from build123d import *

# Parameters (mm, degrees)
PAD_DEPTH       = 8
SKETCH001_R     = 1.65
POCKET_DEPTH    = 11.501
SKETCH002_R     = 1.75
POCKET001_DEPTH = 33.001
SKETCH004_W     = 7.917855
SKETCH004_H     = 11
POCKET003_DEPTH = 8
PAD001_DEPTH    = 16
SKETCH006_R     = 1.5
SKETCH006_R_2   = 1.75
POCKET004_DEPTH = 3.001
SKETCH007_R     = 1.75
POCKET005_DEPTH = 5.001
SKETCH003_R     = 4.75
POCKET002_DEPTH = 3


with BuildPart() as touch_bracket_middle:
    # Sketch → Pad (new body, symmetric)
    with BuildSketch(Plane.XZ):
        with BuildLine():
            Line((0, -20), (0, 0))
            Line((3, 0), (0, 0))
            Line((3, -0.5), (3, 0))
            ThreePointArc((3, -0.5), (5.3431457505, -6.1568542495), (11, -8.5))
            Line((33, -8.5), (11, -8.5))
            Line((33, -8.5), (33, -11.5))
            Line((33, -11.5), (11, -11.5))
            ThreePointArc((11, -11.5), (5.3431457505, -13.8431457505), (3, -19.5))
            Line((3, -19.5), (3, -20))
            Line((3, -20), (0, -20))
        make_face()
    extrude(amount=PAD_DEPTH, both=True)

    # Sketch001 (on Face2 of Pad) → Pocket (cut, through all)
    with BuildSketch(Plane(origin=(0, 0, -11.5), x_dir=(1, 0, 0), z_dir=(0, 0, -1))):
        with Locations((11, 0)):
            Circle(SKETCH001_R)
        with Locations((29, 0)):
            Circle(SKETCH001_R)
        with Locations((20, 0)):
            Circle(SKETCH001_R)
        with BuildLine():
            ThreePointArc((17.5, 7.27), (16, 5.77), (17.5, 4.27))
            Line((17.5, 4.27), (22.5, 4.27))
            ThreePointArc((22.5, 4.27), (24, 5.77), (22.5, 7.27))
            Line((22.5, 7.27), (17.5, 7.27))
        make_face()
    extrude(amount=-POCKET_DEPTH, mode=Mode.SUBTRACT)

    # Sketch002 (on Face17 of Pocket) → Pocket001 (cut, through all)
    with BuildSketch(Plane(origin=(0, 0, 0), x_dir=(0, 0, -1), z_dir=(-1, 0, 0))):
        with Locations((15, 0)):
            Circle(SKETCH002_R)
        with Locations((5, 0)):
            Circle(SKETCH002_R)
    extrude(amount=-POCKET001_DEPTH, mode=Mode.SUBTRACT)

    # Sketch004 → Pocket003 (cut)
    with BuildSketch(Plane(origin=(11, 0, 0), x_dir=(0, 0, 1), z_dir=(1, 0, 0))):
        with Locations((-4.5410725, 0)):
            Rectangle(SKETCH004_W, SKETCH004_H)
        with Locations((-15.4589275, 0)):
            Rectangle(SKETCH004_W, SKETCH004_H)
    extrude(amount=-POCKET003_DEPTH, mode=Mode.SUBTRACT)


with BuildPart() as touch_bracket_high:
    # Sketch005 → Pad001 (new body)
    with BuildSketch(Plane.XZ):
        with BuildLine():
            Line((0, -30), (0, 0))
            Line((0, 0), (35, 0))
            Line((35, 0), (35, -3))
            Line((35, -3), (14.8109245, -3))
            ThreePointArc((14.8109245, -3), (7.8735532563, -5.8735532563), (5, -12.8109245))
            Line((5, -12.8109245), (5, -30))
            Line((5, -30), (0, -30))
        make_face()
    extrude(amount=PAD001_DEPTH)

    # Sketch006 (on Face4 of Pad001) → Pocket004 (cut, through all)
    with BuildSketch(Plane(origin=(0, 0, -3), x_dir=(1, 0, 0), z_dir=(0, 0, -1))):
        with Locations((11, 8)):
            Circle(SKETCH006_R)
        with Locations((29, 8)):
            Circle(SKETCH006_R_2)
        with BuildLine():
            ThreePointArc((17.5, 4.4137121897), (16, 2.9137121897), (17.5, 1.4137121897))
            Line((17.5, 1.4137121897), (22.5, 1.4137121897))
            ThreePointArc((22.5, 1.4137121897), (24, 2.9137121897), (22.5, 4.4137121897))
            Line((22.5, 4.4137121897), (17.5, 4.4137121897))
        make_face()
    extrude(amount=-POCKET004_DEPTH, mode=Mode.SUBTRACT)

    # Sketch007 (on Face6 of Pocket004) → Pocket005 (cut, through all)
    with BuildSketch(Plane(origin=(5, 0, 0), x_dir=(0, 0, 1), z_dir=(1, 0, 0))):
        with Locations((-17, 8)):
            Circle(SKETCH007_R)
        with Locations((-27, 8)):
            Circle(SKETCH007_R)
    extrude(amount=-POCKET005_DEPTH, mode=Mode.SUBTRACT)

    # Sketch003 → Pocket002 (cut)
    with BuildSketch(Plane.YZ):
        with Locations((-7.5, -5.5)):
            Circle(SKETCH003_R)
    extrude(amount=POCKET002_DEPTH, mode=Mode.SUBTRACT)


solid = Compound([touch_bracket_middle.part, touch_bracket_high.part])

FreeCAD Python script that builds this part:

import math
import FreeCAD as App
import Part
import Sketcher


def add_polygon(sketch, points):
    """Adds a closed chain of lines whose ends are joined by coincident constraints."""
    first, n = sketch.GeometryCount, len(points)
    for a, b in zip(points, points[1:] + points[:1]):
        sketch.addGeometry(Part.LineSegment(App.Vector(*a, 0), App.Vector(*b, 0)), False)
    for i in range(n):
        sketch.addConstraint(Sketcher.Constraint("Coincident", first + i, 2, first + (i + 1) % n, 1))

doc = App.newDocument("Part")
params = doc.addObject("Spreadsheet::Sheet", "Params")
for row, (alias, value) in enumerate([
    ("sketch1_radius", "8 mm"),
    ("sketch1_width", "3 mm"),
    ("sketch1_width2", "22 mm"),
    ("sketch1_height", "20 mm"),
    ("pad1_length", "16 mm"),
    ("sketch2_diameter", "3.3 mm"),
    ("sketch2_radius", "1.5 mm"),
    ("sketch2_width", "5 mm"),
    ("sketch3_diameter", "3.5 mm"),
    ("sketch4_width", "11 mm"),
    ("pocket3_length", "8 mm"),
    ("sketch5_width", "5 mm"),
    ("sketch5_width2", "35 mm"),
    ("sketch5_height", "30 mm"),
    ("sketch5_height2", "3 mm"),
    ("pad2_length", "16 mm"),
    ("sketch6_diameter", "3 mm"),
    ("sketch6_diameter2", "3.5 mm"),
    ("sketch6_width", "5 mm"),
    ("sketch7_diameter", "3.5 mm"),
    ("sketch8_diameter", "9.5 mm"),
    ("pocket6_length", "3 mm"),
], start=1):
    params.set(f"A{row}", alias)
    params.set(f"B{row}", "=" + value)
    params.setAlias(f"B{row}", alias)

body = doc.addObject("PartDesign::Body", "Body")

sketch1 = body.newObject("Sketcher::SketchObject", "Sketch")
sketch1.AttachmentSupport = (doc.getObject("XZ_Plane"), [""])
sketch1.MapMode = "FlatFace"
sketch1.addGeometry([
    Part.LineSegment(App.Vector(0, 0, 0), App.Vector(0, -20, 0)),
    Part.LineSegment(App.Vector(0, -20, 0), App.Vector(3, -20, 0)),
    Part.LineSegment(App.Vector(3, -20, 0), App.Vector(3, -19.5, 0)),
    Part.ArcOfCircle(Part.Circle(App.Vector(11, -19.5, 0), App.Vector(0, 0, 1), 8), math.radians(90), math.radians(180)),
    Part.LineSegment(App.Vector(11, -11.5, 0), App.Vector(33, -11.5, 0)),
    Part.LineSegment(App.Vector(33, -11.5, 0), App.Vector(33, -8.5, 0)),
    Part.LineSegment(App.Vector(33, -8.5, 0), App.Vector(11, -8.5, 0)),
    Part.ArcOfCircle(Part.Circle(App.Vector(11, -0.5, 0), App.Vector(0, 0, 1), 8), math.radians(180), math.radians(270)),
    Part.LineSegment(App.Vector(3, -0.5, 0), App.Vector(3, 0, 0)),
    Part.LineSegment(App.Vector(3, 0, 0), App.Vector(0, 0, 0)),
], False)
sketch1.addConstraint([
    Sketcher.Constraint("Coincident", 0, 2, 1, 1),
    Sketcher.Constraint("Coincident", 1, 2, 2, 1),
    Sketcher.Constraint("Tangent", 2, 2, 3, 2),
    Sketcher.Constraint("Tangent", 3, 1, 4, 1),
    Sketcher.Constraint("Coincident", 4, 2, 5, 1),
    Sketcher.Constraint("Coincident", 5, 2, 6, 1),
    Sketcher.Constraint("Tangent", 6, 2, 7, 2),
    Sketcher.Constraint("Tangent", 7, 1, 8, 1),
    Sketcher.Constraint("Coincident", 8, 2, 9, 1),
    Sketcher.Constraint("Coincident", 9, 2, 0, 1),
    Sketcher.Constraint("Vertical", 0),
    Sketcher.Constraint("Horizontal", 1),
    Sketcher.Constraint("Vertical", 2),
    Sketcher.Constraint("Horizontal", 4),
    Sketcher.Constraint("Vertical", 5),
    Sketcher.Constraint("Horizontal", 6),
    Sketcher.Constraint("Vertical", 8),
    Sketcher.Constraint("Horizontal", 9),
    Sketcher.Constraint("Coincident", 9, 2, -1, 1),
    Sketcher.Constraint("Equal", 3, 7),
    Sketcher.Constraint("Vertical", 3, 3, 7, 3),
    Sketcher.Constraint("Equal", 9, 5),
    Sketcher.Constraint("Equal", 2, 8),
    Sketcher.Constraint("Radius", 3, 8.0),
    Sketcher.Constraint("DistanceX", 1, 1, 1, 2, 3.0),
    Sketcher.Constraint("DistanceX", 4, 1, 4, 2, 22.0),
    Sketcher.Constraint("DistanceY", 0, 2, 0, 1, 20.0),
])
sketch1.setExpression("Constraints[23]", "Params.sketch1_radius")
sketch1.setExpression("Constraints[24]", "Params.sketch1_width")
sketch1.setExpression("Constraints[25]", "Params.sketch1_width2")
sketch1.setExpression("Constraints[26]", "Params.sketch1_height")
pad1 = body.newObject("PartDesign::Pad", "Pad")
pad1.Profile = sketch1
pad1.setExpression("Length", "Params.pad1_length")
pad1.Midplane = True

sketch2 = body.newObject("Sketcher::SketchObject", "Sketch001")
sketch2.AttachmentSupport = (doc.getObject("XY_Plane"), [""])
sketch2.MapMode = "FlatFace"
sketch2.AttachmentOffset = App.Placement(App.Vector(0, 0, -11.5), App.Rotation())
sketch2.addGeometry([
    Part.Circle(App.Vector(11, 0, 0), App.Vector(0, 0, 1), 1.65),
    Part.Circle(App.Vector(29, 0, 0), App.Vector(0, 0, 1), 1.65),
    Part.Circle(App.Vector(20, 0, 0), App.Vector(0, 0, 1), 1.65),
    Part.ArcOfCircle(Part.Circle(App.Vector(17.5, -5.77, 0), App.Vector(0, 0, 1), 1.5), math.radians(90), math.radians(270)),
    Part.LineSegment(App.Vector(17.5, -4.27, 0), App.Vector(22.5, -4.27, 0)),
    Part.ArcOfCircle(Part.Circle(App.Vector(22.5, -5.77, 0), App.Vector(0, 0, 1), 1.5), math.radians(-90), math.radians(90)),
    Part.LineSegment(App.Vector(22.5, -7.27, 0), App.Vector(17.5, -7.27, 0)),
], False)
sketch2.addConstraint([
    Sketcher.Constraint("Tangent", 3, 1, 4, 1),
    Sketcher.Constraint("Tangent", 4, 2, 5, 2),
    Sketcher.Constraint("Tangent", 5, 1, 6, 1),
    Sketcher.Constraint("Tangent", 6, 2, 3, 2),
    Sketcher.Constraint("Horizontal", 4),
    Sketcher.Constraint("Horizontal", 6),
    Sketcher.Constraint("Equal", 0, 1),
    Sketcher.Constraint("Equal", 1, 2),
    Sketcher.Constraint("PointOnObject", 0, 3, -1),
    Sketcher.Constraint("PointOnObject", 1, 3, -1),
    Sketcher.Constraint("PointOnObject", 2, 3, -1),
    Sketcher.Constraint("Diameter", 0, 3.3),
    Sketcher.Constraint("Radius", 3, 1.5),
    Sketcher.Constraint("DistanceX", 4, 1, 4, 2, 5.0),
    Sketcher.Constraint("DistanceX", -1, 1, 0, 3, 11.0),
    Sketcher.Constraint("DistanceX", -1, 1, 1, 3, 29.0),
    Sketcher.Constraint("DistanceX", -1, 1, 2, 3, 20.0),
    Sketcher.Constraint("DistanceX", -1, 1, 3, 3, 17.5),
    Sketcher.Constraint("DistanceY", 3, 3, -1, 1, 5.77),
])
sketch2.setExpression("Constraints[11]", "Params.sketch2_diameter")
sketch2.setExpression("Constraints[12]", "Params.sketch2_radius")
sketch2.setExpression("Constraints[13]", "Params.sketch2_width")
pocket1 = body.newObject("PartDesign::Pocket", "Pocket")
pocket1.Profile = sketch2
pocket1.Type = "ThroughAll"
pocket1.Reversed = True

sketch3 = body.newObject("Sketcher::SketchObject", "Sketch002")
sketch3.AttachmentSupport = (doc.getObject("YZ_Plane"), [""])
sketch3.MapMode = "FlatFace"
sketch3.addGeometry([
    Part.Circle(App.Vector(0, -15, 0), App.Vector(0, 0, 1), 1.75),
    Part.Circle(App.Vector(0, -5, 0), App.Vector(0, 0, 1), 1.75),
], False)
sketch3.addConstraint([
    Sketcher.Constraint("Equal", 0, 1),
    Sketcher.Constraint("PointOnObject", 0, 3, -2),
    Sketcher.Constraint("PointOnObject", 1, 3, -2),
    Sketcher.Constraint("Diameter", 0, 3.5),
    Sketcher.Constraint("DistanceY", 0, 3, -1, 1, 15.0),
    Sketcher.Constraint("DistanceY", 1, 3, -1, 1, 5.0),
])
sketch3.setExpression("Constraints[3]", "Params.sketch3_diameter")
pocket2 = body.newObject("PartDesign::Pocket", "Pocket001")
pocket2.Profile = sketch3
pocket2.Type = "ThroughAll"
pocket2.Reversed = True

sketch4 = body.newObject("Sketcher::SketchObject", "Sketch003")
sketch4.AttachmentSupport = (doc.getObject("YZ_Plane"), [""])
sketch4.MapMode = "FlatFace"
sketch4.AttachmentOffset = App.Placement(App.Vector(0, 0, 11), App.Rotation())
add_polygon(sketch4, [(-5.5, -8.5), (5.5, -8.5), (5.5, -0.582145), (-5.5, -0.582145)])
add_polygon(sketch4, [(-5.5, -19.417855), (5.5, -19.417855), (5.5, -11.5), (-5.5, -11.5)])
sketch4.addConstraint([
    Sketcher.Constraint("Horizontal", 0),
    Sketcher.Constraint("Vertical", 1),
    Sketcher.Constraint("Horizontal", 2),
    Sketcher.Constraint("Vertical", 3),
    Sketcher.Constraint("Horizontal", 4),
    Sketcher.Constraint("Vertical", 5),
    Sketcher.Constraint("Horizontal", 6),
    Sketcher.Constraint("Vertical", 7),
    Sketcher.Constraint("Vertical", 1, 2, 4, 2),
    Sketcher.Constraint("Vertical", 3, 2, 6, 2),
    Sketcher.Constraint("Equal", 3, 5),
    Sketcher.Constraint("DistanceX", 0, 1, 0, 2, 11.0),
    Sketcher.Constraint("DistanceY", 5, 2, 0, 2, 3.0),
    Sketcher.Constraint("DistanceX", -1, 1, 0, 2, 5.5),
    Sketcher.Constraint("DistanceY", 0, 2, -1, 1, 8.5),
    Sketcher.Constraint("DistanceY", 1, 1, 1, 2, 7.917855),
])
sketch4.setExpression("Constraints[19]", "Params.sketch4_width")
pocket3 = body.newObject("PartDesign::Pocket", "Pocket002")
pocket3.Profile = sketch4
pocket3.setExpression("Length", "Params.pocket3_length")
body2 = doc.addObject("PartDesign::Body", "Body001")

sketch5 = body2.newObject("Sketcher::SketchObject", "Sketch004")
sketch5.AttachmentSupport = (doc.getObject("XZ_Plane001"), [""])
sketch5.MapMode = "FlatFace"
sketch5.addGeometry([
    Part.LineSegment(App.Vector(0, 0, 0), App.Vector(0, -30, 0)),
    Part.LineSegment(App.Vector(0, -30, 0), App.Vector(5, -30, 0)),
    Part.LineSegment(App.Vector(5, -30, 0), App.Vector(5, -12.810925, 0)),
    Part.ArcOfCircle(Part.Circle(App.Vector(14.810925, -12.810925, 0), App.Vector(0, 0, 1), 9.810925), math.radians(90), math.radians(180)),
    Part.LineSegment(App.Vector(14.810925, -3, 0), App.Vector(35, -3, 0)),
    Part.LineSegment(App.Vector(35, -3, 0), App.Vector(35, 0, 0)),
    Part.LineSegment(App.Vector(35, 0, 0), App.Vector(0, 0, 0)),
], False)
sketch5.addConstraint([
    Sketcher.Constraint("Coincident", 0, 2, 1, 1),
    Sketcher.Constraint("Coincident", 1, 2, 2, 1),
    Sketcher.Constraint("Tangent", 2, 2, 3, 2),
    Sketcher.Constraint("Tangent", 3, 1, 4, 1),
    Sketcher.Constraint("Coincident", 4, 2, 5, 1),
    Sketcher.Constraint("Coincident", 5, 2, 6, 1),
    Sketcher.Constraint("Coincident", 6, 2, 0, 1),
    Sketcher.Constraint("Vertical", 0),
    Sketcher.Constraint("Horizontal", 1),
    Sketcher.Constraint("Vertical", 2),
    Sketcher.Constraint("Horizontal", 4),
    Sketcher.Constraint("Vertical", 5),
    Sketcher.Constraint("Horizontal", 6),
    Sketcher.Constraint("Coincident", 6, 2, -1, 1),
    Sketcher.Constraint("DistanceX", 1, 1, 1, 2, 5.0),
    Sketcher.Constraint("DistanceX", 6, 2, 6, 1, 35.0),
    Sketcher.Constraint("DistanceY", 0, 2, 0, 1, 30.0),
    Sketcher.Constraint("DistanceY", 5, 1, 5, 2, 3.0),
    Sketcher.Constraint("Radius", 3, 9.810925),
])
sketch5.setExpression("Constraints[14]", "Params.sketch5_width")
sketch5.setExpression("Constraints[15]", "Params.sketch5_width2")
sketch5.setExpression("Constraints[16]", "Params.sketch5_height")
sketch5.setExpression("Constraints[17]", "Params.sketch5_height2")
pad2 = body2.newObject("PartDesign::Pad", "Pad001")
pad2.Profile = sketch5
pad2.setExpression("Length", "Params.pad2_length")

sketch6 = body2.newObject("Sketcher::SketchObject", "Sketch005")
sketch6.AttachmentSupport = (doc.getObject("XY_Plane001"), [""])
sketch6.MapMode = "FlatFace"
sketch6.AttachmentOffset = App.Placement(App.Vector(0, 0, -3), App.Rotation())
sketch6.addGeometry([
    Part.Circle(App.Vector(11, -8, 0), App.Vector(0, 0, 1), 1.5),
    Part.Circle(App.Vector(29, -8, 0), App.Vector(0, 0, 1), 1.75),
    Part.ArcOfCircle(Part.Circle(App.Vector(17.5, -2.913712, 0), App.Vector(0, 0, 1), 1.5), math.radians(90), math.radians(270)),
    Part.LineSegment(App.Vector(17.5, -1.413712, 0), App.Vector(22.5, -1.413712, 0)),
    Part.ArcOfCircle(Part.Circle(App.Vector(22.5, -2.913712, 0), App.Vector(0, 0, 1), 1.5), math.radians(-90), math.radians(90)),
    Part.LineSegment(App.Vector(22.5, -4.413712, 0), App.Vector(17.5, -4.413712, 0)),
], False)
sketch6.addConstraint([
    Sketcher.Constraint("Tangent", 2, 1, 3, 1),
    Sketcher.Constraint("Tangent", 3, 2, 4, 2),
    Sketcher.Constraint("Tangent", 4, 1, 5, 1),
    Sketcher.Constraint("Tangent", 5, 2, 2, 2),
    Sketcher.Constraint("Horizontal", 3),
    Sketcher.Constraint("Horizontal", 5),
    Sketcher.Constraint("Equal", 0, 2),
    Sketcher.Constraint("Horizontal", 0, 3, 1, 3),
    Sketcher.Constraint("Diameter", 0, 3.0),
    Sketcher.Constraint("Diameter", 1, 3.5),
    Sketcher.Constraint("DistanceX", 3, 1, 3, 2, 5.0),
    Sketcher.Constraint("DistanceX", -1, 1, 0, 3, 11.0),
    Sketcher.Constraint("DistanceY", 0, 3, -1, 1, 8.0),
    Sketcher.Constraint("DistanceX", -1, 1, 1, 3, 29.0),
    Sketcher.Constraint("DistanceX", -1, 1, 2, 3, 17.5),
    Sketcher.Constraint("DistanceY", 2, 3, -1, 1, 2.913712),
])
sketch6.setExpression("Constraints[8]", "Params.sketch6_diameter")
sketch6.setExpression("Constraints[9]", "Params.sketch6_diameter2")
sketch6.setExpression("Constraints[10]", "Params.sketch6_width")
pocket4 = body2.newObject("PartDesign::Pocket", "Pocket003")
pocket4.Profile = sketch6
pocket4.Type = "ThroughAll"
pocket4.Reversed = True

sketch7 = body2.newObject("Sketcher::SketchObject", "Sketch006")
sketch7.AttachmentSupport = (doc.getObject("YZ_Plane001"), [""])
sketch7.MapMode = "FlatFace"
sketch7.AttachmentOffset = App.Placement(App.Vector(0, 0, 5), App.Rotation())
sketch7.addGeometry([
    Part.Circle(App.Vector(-8, -17, 0), App.Vector(0, 0, 1), 1.75),
    Part.Circle(App.Vector(-8, -27, 0), App.Vector(0, 0, 1), 1.75),
], False)
sketch7.addConstraint([
    Sketcher.Constraint("Equal", 0, 1),
    Sketcher.Constraint("Vertical", 0, 3, 1, 3),
    Sketcher.Constraint("Diameter", 0, 3.5),
    Sketcher.Constraint("DistanceX", 0, 3, -1, 1, 8.0),
    Sketcher.Constraint("DistanceY", 0, 3, -1, 1, 17.0),
    Sketcher.Constraint("DistanceY", 1, 3, -1, 1, 27.0),
])
sketch7.setExpression("Constraints[2]", "Params.sketch7_diameter")
pocket5 = body2.newObject("PartDesign::Pocket", "Pocket004")
pocket5.Profile = sketch7
pocket5.Type = "ThroughAll"

sketch8 = body2.newObject("Sketcher::SketchObject", "Sketch007")
sketch8.AttachmentSupport = (doc.getObject("YZ_Plane001"), [""])
sketch8.MapMode = "FlatFace"
sketch8.addGeometry(Part.Circle(App.Vector(-7.5, -5.5, 0), App.Vector(0, 0, 1), 4.75), False)
sketch8.addConstraint([
    Sketcher.Constraint("Diameter", 0, 9.5),
    Sketcher.Constraint("DistanceX", 0, 3, -1, 1, 7.5),
    Sketcher.Constraint("DistanceY", 0, 3, -1, 1, 5.5),
])
sketch8.setExpression("Constraints[0]", "Params.sketch8_diameter")
pocket6 = body2.newObject("PartDesign::Pocket", "Pocket005")
pocket6.Profile = sketch8
pocket6.setExpression("Length", "Params.pocket6_length")
pocket6.Reversed = True

doc.recompute()
